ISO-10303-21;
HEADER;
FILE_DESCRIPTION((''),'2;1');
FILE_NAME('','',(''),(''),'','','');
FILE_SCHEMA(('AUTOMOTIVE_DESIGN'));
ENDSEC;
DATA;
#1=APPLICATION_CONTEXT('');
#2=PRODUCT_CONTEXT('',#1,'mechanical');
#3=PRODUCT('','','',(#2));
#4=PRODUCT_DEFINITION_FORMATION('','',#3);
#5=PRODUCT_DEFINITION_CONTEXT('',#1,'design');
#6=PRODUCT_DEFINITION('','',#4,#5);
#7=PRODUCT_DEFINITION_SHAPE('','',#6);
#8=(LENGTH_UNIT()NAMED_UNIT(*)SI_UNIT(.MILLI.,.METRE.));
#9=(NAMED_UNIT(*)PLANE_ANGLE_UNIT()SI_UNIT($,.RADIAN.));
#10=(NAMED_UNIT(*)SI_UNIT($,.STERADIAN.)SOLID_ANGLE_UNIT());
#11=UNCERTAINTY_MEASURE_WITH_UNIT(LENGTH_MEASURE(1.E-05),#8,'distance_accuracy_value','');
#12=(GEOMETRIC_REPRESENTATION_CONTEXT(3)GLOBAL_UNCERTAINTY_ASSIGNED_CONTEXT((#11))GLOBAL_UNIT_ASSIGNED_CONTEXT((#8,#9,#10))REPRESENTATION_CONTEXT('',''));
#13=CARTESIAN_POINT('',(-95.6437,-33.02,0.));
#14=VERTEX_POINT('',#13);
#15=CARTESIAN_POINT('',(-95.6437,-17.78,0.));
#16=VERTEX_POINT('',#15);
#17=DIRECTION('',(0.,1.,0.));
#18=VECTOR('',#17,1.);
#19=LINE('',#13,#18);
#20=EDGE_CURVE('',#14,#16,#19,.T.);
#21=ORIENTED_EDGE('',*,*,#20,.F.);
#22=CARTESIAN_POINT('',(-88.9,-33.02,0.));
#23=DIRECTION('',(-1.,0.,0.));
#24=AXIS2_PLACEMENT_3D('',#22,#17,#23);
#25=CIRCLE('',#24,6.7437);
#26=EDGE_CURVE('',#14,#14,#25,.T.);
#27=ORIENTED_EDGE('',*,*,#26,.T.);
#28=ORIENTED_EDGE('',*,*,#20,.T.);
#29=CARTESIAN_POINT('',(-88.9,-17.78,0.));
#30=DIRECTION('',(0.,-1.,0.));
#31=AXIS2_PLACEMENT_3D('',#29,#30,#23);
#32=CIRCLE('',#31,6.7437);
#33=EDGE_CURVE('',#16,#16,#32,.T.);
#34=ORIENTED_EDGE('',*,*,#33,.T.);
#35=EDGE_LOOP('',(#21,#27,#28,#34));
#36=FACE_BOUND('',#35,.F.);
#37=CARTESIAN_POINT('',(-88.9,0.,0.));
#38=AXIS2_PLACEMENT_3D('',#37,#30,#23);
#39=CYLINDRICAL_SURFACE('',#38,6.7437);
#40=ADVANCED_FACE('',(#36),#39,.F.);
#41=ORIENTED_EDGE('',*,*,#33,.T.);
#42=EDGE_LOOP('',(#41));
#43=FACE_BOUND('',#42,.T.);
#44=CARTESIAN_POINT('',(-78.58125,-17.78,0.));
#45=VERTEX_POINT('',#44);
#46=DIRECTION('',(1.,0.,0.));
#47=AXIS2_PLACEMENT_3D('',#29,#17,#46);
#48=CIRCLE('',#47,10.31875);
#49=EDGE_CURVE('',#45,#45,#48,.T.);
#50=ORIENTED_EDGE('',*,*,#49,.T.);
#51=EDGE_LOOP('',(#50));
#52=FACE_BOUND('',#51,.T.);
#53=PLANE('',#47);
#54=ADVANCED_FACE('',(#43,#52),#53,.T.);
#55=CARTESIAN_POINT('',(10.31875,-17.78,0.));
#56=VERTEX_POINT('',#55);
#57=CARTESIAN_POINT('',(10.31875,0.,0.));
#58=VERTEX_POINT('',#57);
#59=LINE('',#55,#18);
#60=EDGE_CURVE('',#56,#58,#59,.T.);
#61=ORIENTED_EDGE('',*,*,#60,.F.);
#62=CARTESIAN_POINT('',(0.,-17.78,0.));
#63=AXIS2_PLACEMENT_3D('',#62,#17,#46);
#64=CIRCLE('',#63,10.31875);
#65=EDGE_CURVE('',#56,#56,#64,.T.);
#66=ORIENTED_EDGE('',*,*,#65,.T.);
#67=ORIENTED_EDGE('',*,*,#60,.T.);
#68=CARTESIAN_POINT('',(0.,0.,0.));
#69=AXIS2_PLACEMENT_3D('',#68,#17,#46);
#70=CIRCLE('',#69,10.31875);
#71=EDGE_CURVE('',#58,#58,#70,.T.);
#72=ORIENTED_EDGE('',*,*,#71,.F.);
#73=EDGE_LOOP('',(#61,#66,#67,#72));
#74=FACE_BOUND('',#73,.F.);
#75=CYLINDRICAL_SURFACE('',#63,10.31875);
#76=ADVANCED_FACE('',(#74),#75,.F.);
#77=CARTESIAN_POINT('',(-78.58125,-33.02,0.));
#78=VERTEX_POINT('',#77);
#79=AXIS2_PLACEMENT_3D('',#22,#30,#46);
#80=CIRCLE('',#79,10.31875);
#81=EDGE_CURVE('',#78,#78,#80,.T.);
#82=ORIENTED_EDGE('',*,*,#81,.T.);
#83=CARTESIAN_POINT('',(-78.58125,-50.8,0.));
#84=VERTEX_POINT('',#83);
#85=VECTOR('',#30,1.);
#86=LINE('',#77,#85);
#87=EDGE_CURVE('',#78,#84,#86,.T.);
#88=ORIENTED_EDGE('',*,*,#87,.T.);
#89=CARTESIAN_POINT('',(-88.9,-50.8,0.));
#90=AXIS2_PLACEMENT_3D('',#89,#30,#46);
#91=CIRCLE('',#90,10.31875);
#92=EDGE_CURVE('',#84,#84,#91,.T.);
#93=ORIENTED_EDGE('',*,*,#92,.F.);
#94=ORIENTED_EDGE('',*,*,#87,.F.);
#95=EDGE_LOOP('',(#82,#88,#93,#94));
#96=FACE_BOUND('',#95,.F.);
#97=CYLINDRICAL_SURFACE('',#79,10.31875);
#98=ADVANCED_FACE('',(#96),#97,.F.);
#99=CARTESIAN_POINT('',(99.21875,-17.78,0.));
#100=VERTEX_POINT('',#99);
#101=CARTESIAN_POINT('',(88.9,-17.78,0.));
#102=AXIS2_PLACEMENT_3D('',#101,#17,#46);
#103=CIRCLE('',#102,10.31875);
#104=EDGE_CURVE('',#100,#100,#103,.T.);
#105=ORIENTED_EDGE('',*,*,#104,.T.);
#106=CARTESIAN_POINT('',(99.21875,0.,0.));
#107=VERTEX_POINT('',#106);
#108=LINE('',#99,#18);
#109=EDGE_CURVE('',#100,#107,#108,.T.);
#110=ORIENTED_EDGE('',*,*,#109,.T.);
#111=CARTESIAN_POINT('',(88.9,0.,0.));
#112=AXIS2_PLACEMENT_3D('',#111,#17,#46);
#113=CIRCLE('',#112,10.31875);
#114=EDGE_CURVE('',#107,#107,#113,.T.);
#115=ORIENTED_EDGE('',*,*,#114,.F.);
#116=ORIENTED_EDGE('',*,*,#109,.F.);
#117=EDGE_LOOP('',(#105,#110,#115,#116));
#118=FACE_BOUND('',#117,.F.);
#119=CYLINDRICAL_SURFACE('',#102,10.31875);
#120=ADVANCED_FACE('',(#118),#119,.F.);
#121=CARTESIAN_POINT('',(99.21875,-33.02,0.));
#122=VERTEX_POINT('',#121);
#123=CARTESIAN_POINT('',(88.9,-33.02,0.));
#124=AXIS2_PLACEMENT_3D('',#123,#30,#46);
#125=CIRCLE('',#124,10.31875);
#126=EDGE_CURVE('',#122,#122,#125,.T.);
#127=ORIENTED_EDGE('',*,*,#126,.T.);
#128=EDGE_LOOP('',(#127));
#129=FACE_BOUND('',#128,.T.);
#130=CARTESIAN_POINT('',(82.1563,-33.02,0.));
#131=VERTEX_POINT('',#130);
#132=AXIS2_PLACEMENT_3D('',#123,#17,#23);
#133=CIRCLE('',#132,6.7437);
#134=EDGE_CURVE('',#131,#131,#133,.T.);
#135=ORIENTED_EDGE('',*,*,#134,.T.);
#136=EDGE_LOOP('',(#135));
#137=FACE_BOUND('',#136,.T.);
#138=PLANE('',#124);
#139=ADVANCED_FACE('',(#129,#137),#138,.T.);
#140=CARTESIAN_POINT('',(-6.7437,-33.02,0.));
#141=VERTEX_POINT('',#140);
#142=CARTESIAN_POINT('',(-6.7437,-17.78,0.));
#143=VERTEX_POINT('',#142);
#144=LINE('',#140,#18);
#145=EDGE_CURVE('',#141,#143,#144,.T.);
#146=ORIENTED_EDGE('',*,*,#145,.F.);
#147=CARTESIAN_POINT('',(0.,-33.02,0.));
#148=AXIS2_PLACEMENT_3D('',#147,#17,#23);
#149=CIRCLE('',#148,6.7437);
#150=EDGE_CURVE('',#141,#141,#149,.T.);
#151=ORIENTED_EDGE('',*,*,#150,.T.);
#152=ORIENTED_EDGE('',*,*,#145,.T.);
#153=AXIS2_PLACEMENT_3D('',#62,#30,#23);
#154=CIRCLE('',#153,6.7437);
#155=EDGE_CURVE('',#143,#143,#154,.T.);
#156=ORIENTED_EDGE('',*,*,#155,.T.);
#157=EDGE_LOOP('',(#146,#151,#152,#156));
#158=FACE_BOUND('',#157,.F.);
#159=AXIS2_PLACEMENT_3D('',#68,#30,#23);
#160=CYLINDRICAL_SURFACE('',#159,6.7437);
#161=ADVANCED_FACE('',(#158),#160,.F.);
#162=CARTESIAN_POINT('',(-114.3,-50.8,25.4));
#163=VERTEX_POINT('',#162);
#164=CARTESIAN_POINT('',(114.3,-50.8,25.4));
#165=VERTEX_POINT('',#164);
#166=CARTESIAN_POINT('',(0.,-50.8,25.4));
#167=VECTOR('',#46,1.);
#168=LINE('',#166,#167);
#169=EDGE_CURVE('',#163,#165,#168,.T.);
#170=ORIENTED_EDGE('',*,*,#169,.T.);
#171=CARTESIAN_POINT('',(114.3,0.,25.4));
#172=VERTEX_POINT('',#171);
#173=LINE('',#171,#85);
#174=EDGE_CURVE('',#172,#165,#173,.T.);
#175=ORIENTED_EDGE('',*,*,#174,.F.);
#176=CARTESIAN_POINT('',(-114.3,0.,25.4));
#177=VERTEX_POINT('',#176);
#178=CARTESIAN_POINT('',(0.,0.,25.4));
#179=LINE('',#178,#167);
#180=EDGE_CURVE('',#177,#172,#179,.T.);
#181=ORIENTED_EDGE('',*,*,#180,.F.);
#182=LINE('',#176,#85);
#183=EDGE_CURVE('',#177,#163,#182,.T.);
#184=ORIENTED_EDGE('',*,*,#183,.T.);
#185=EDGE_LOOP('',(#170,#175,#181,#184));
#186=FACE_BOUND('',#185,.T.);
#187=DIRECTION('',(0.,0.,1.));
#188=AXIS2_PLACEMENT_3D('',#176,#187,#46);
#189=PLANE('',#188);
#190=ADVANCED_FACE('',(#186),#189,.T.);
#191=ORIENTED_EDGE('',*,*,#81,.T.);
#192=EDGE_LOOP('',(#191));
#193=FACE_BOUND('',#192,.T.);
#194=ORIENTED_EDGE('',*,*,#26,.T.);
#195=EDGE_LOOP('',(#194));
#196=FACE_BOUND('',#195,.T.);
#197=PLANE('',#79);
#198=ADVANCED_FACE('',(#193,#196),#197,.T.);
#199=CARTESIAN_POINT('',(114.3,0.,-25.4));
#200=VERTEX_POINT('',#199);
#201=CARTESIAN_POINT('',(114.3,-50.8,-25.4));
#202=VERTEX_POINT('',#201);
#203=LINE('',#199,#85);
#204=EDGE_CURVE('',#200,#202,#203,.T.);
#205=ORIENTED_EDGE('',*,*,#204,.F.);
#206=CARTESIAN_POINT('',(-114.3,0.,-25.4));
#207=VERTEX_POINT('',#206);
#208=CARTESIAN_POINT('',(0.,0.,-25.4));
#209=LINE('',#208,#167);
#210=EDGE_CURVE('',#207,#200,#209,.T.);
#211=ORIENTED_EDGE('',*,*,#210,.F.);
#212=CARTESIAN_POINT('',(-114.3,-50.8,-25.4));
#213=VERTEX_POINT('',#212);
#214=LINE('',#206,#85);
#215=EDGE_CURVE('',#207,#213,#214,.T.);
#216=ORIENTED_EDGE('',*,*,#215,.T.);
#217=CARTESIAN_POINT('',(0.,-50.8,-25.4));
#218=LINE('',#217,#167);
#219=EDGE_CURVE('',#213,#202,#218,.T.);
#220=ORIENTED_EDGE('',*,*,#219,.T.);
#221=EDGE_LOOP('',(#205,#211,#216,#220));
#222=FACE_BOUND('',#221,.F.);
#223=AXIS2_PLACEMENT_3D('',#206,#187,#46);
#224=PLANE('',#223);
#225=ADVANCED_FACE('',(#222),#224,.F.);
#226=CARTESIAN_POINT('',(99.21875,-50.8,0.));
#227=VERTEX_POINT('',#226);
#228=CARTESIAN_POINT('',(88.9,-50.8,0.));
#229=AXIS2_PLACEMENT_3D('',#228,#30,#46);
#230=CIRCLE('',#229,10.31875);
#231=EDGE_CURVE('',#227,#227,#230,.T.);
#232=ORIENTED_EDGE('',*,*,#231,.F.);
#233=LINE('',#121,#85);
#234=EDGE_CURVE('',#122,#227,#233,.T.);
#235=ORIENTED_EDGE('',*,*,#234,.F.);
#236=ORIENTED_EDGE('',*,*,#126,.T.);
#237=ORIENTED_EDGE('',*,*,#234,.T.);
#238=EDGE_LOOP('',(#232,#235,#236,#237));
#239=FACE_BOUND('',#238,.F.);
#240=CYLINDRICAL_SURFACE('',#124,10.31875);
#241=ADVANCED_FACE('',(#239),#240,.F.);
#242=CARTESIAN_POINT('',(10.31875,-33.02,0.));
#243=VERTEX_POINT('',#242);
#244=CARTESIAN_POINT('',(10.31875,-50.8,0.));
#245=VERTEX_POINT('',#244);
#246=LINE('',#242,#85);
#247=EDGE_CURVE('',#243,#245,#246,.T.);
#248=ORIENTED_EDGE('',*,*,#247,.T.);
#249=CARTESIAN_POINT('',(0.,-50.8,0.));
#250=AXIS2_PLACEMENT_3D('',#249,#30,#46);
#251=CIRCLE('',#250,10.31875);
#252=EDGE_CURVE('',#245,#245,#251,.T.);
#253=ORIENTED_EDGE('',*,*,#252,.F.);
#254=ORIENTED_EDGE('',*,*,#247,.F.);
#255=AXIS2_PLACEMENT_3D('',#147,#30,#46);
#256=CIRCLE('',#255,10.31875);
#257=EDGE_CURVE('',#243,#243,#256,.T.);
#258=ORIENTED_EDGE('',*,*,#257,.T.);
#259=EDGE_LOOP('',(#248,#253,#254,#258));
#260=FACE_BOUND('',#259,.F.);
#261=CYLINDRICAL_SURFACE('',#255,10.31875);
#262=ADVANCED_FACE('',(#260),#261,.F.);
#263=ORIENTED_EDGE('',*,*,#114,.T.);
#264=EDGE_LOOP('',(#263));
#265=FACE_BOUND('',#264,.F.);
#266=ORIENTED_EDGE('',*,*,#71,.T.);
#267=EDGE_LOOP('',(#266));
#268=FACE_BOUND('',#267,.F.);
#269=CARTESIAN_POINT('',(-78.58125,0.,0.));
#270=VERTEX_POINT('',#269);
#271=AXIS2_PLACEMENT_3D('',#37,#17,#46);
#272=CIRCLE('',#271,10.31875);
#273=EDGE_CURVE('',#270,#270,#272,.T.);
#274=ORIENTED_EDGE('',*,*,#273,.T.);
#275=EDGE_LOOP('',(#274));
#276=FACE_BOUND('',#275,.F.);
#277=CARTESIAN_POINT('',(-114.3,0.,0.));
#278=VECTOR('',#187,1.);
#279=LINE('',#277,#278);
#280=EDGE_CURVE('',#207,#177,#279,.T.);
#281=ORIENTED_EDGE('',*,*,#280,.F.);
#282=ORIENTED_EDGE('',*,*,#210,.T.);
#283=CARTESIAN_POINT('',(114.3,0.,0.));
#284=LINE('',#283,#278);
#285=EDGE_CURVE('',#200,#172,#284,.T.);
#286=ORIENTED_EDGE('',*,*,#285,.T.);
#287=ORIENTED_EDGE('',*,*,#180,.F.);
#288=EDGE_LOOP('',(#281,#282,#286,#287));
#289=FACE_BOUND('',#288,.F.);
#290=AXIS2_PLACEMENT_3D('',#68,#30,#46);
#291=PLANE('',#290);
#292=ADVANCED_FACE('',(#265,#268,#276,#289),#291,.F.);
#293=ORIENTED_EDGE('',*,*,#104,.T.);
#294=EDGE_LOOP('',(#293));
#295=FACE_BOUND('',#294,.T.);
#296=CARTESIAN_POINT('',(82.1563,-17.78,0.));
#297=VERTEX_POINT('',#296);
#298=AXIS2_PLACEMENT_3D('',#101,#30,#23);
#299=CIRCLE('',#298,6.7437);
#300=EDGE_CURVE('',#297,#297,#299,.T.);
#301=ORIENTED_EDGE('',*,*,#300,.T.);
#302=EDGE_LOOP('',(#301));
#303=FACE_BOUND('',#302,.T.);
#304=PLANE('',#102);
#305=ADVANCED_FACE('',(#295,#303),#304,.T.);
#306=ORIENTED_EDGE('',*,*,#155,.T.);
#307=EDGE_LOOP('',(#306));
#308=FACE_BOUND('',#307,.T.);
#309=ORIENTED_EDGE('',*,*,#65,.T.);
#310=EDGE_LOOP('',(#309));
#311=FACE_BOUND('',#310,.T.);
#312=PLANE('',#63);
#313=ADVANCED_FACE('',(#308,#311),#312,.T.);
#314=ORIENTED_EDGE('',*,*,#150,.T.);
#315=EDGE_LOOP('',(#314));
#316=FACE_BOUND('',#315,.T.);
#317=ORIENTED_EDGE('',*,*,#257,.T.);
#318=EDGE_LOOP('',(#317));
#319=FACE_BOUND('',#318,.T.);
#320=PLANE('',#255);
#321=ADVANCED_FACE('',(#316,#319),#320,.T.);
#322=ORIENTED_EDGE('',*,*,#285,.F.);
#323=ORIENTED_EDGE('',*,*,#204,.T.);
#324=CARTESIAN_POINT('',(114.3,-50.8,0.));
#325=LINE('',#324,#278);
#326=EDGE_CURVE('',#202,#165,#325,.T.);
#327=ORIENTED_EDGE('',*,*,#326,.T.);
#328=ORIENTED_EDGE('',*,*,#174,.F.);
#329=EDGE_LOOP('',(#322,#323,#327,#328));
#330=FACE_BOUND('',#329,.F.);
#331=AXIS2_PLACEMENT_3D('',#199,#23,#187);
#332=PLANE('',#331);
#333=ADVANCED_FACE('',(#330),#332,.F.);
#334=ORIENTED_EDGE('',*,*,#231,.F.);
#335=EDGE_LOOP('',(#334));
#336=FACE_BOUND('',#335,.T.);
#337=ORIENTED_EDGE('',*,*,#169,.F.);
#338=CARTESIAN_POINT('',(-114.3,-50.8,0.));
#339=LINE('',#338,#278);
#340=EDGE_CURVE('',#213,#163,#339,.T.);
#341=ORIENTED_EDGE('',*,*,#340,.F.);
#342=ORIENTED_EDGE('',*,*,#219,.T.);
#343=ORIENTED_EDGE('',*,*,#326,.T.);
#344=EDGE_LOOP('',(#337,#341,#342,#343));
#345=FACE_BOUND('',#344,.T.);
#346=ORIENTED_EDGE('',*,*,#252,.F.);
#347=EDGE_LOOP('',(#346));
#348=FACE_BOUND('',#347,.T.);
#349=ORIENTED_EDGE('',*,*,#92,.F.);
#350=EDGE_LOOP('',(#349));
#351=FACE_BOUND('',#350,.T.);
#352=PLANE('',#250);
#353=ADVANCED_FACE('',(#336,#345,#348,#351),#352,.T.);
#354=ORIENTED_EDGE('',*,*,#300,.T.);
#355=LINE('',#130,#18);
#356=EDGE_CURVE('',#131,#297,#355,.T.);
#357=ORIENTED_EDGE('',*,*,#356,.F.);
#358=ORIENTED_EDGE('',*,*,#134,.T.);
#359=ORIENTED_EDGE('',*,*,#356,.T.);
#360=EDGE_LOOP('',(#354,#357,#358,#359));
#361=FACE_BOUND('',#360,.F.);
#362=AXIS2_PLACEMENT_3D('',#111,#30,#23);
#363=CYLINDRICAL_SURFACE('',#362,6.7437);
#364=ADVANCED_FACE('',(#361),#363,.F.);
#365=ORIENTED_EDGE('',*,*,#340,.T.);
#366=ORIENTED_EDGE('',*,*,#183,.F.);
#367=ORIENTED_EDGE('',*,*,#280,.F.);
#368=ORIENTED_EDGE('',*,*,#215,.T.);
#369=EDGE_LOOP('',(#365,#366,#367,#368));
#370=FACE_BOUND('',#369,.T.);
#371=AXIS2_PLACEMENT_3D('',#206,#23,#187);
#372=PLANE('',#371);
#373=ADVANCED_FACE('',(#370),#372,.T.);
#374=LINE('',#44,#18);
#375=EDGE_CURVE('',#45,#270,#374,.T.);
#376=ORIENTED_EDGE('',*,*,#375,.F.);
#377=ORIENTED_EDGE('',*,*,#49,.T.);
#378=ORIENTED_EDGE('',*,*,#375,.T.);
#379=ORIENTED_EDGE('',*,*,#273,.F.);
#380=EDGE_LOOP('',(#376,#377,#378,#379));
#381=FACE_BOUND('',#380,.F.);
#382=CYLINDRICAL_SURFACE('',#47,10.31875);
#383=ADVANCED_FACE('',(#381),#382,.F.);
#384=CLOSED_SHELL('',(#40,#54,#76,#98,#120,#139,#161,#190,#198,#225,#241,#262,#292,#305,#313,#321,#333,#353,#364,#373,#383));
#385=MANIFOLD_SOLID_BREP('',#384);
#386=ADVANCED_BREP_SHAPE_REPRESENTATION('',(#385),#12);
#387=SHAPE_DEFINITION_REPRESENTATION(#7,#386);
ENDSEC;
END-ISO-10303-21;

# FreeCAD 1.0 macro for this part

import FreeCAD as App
import Part
import Sketcher
from FreeCAD import Vector
Q = App.Units.Quantity


def add_polygon(sketch, points):
    """Adds a closed chain of lines whose ends are joined by coincident constraints."""
    first, n = sketch.GeometryCount, len(points)
    for a, b in zip(points, points[1:] + points[:1]):
        sketch.addGeometry(Part.LineSegment(App.Vector(*a, 0), App.Vector(*b, 0)), False)
    for i in range(n):
        sketch.addConstraint(Sketcher.Constraint("Coincident", first + i, 2, first + (i + 1) % n, 1))

doc = App.newDocument("Part")
body = doc.addObject("PartDesign::Body", "Body")

# Sketch on XZ plane
sketch1 = body.newObject("Sketcher::SketchObject", "Sketch")
sketch1.AttachmentSupport = (doc.getObject("XZ_Plane"), [""])
sketch1.MapMode = "FlatFace"
add_polygon(sketch1, [(-114, 25), (-114, -25), (114, -25), (114, 25)])  # lines 0-3
sketch1.addConstraint([
    Sketcher.Constraint("Vertical", 0),
    Sketcher.Constraint("Horizontal", 1),
    Sketcher.Constraint("Vertical", 2),
    Sketcher.Constraint("Horizontal", 3),
    Sketcher.Constraint("Symmetric", 0, 2, 2, 2, -1, 1),
    Sketcher.Constraint("DistanceX", 1, 1, 1, 2, Q("9 in")),
    Sketcher.Constraint("DistanceY", 0, 2, 0, 1, Q("2 in")),
])
pad1 = body.newObject("PartDesign::Pad", "Pad")
pad1.Profile = sketch1
pad1.Length = Q("2 in")

# Sketch on XZ plane
sketch2 = body.newObject("Sketcher::SketchObject", "Sketch001")
sketch2.AttachmentSupport = (doc.getObject("XZ_Plane"), [""])
sketch2.MapMode = "FlatFace"
sketch2.AttachmentOffset = App.Placement(Vector(0, 0, 2 * 25.4), App.Rotation())
sketch2.addGeometry([
    Part.Circle(Vector(-89, 0, 0), Vector(0, 0, 1), 7),
    Part.Circle(Vector(0, 0, 0), Vector(0, 0, 1), 7),
    Part.Circle(Vector(89, 0, 0), Vector(0, 0, 1), 7),
], False)
sketch2.addConstraint([
    Sketcher.Constraint("Coincident", 1, 3, -1, 1),
    Sketcher.Constraint("Equal", 0, 1),
    Sketcher.Constraint("Equal", 1, 2),
    Sketcher.Constraint("Symmetric", 0, 3, 2, 3, -1, 1),
    Sketcher.Constraint("PointOnObject", 0, 3, -1),
    Sketcher.Constraint("Diameter", 0, Q("0.531 in")),
    Sketcher.Constraint("DistanceX", 0, 3, 2, 3, Q("7 in")),
])
doc.recompute()
hole = body.newObject("PartDesign::Hole", "Hole")
hole.Profile = sketch2
hole.ThreadType = "None"
hole.Diameter = Q("0.531 in")
hole.DepthType = "ThroughAll"
hole.HoleCutType = "Counterbore"
hole.HoleCutDiameter = Q("0.8125 in")
hole.HoleCutDepth = Q("0.7 in")

# Sketch on XZ plane
sketch3 = body.newObject("Sketcher::SketchObject", "Sketch002")
sketch3.AttachmentSupport = (doc.getObject("XZ_Plane"), [""])
sketch3.MapMode = "FlatFace"
sketch3.addGeometry([
    Part.Circle(Vector(89, 0, 0), Vector(0, 0, 1), 7),
    Part.Circle(Vector(0, 0, 0), Vector(0, 0, 1), 7),
    Part.Circle(Vector(-89, 0, 0), Vector(0, 0, 1), 7),
], False)
sketch3.addConstraint([
    Sketcher.Constraint("Coincident", 1, 3, -1, 1),
    Sketcher.Constraint("Equal", 0, 1),
    Sketcher.Constraint("Equal", 1, 2),
    Sketcher.Constraint("Symmetric", 0, 3, 2, 3, -1, 1),
    Sketcher.Constraint("PointOnObject", 0, 3, -1),
    Sketcher.Constraint("Diameter", 0, Q("0.531 in")),
    Sketcher.Constraint("DistanceX", 2, 3, 0, 3, Q("7 in")),
])
doc.recompute()
hole2 = body.newObject("PartDesign::Hole", "Hole001")
hole2.Profile = sketch3
hole2.ThreadType = "None"
hole2.Diameter = Q("0.531 in")
hole2.DepthType = "Dimension"
hole2.Depth = Q("1 in")
hole2.DrillPoint = "Flat"
hole2.HoleCutType = "Counterbore"
hole2.HoleCutDiameter = Q("0.8125 in")
hole2.HoleCutDepth = Q("0.7 in")
hole2.Reversed = True

doc.recompute()
